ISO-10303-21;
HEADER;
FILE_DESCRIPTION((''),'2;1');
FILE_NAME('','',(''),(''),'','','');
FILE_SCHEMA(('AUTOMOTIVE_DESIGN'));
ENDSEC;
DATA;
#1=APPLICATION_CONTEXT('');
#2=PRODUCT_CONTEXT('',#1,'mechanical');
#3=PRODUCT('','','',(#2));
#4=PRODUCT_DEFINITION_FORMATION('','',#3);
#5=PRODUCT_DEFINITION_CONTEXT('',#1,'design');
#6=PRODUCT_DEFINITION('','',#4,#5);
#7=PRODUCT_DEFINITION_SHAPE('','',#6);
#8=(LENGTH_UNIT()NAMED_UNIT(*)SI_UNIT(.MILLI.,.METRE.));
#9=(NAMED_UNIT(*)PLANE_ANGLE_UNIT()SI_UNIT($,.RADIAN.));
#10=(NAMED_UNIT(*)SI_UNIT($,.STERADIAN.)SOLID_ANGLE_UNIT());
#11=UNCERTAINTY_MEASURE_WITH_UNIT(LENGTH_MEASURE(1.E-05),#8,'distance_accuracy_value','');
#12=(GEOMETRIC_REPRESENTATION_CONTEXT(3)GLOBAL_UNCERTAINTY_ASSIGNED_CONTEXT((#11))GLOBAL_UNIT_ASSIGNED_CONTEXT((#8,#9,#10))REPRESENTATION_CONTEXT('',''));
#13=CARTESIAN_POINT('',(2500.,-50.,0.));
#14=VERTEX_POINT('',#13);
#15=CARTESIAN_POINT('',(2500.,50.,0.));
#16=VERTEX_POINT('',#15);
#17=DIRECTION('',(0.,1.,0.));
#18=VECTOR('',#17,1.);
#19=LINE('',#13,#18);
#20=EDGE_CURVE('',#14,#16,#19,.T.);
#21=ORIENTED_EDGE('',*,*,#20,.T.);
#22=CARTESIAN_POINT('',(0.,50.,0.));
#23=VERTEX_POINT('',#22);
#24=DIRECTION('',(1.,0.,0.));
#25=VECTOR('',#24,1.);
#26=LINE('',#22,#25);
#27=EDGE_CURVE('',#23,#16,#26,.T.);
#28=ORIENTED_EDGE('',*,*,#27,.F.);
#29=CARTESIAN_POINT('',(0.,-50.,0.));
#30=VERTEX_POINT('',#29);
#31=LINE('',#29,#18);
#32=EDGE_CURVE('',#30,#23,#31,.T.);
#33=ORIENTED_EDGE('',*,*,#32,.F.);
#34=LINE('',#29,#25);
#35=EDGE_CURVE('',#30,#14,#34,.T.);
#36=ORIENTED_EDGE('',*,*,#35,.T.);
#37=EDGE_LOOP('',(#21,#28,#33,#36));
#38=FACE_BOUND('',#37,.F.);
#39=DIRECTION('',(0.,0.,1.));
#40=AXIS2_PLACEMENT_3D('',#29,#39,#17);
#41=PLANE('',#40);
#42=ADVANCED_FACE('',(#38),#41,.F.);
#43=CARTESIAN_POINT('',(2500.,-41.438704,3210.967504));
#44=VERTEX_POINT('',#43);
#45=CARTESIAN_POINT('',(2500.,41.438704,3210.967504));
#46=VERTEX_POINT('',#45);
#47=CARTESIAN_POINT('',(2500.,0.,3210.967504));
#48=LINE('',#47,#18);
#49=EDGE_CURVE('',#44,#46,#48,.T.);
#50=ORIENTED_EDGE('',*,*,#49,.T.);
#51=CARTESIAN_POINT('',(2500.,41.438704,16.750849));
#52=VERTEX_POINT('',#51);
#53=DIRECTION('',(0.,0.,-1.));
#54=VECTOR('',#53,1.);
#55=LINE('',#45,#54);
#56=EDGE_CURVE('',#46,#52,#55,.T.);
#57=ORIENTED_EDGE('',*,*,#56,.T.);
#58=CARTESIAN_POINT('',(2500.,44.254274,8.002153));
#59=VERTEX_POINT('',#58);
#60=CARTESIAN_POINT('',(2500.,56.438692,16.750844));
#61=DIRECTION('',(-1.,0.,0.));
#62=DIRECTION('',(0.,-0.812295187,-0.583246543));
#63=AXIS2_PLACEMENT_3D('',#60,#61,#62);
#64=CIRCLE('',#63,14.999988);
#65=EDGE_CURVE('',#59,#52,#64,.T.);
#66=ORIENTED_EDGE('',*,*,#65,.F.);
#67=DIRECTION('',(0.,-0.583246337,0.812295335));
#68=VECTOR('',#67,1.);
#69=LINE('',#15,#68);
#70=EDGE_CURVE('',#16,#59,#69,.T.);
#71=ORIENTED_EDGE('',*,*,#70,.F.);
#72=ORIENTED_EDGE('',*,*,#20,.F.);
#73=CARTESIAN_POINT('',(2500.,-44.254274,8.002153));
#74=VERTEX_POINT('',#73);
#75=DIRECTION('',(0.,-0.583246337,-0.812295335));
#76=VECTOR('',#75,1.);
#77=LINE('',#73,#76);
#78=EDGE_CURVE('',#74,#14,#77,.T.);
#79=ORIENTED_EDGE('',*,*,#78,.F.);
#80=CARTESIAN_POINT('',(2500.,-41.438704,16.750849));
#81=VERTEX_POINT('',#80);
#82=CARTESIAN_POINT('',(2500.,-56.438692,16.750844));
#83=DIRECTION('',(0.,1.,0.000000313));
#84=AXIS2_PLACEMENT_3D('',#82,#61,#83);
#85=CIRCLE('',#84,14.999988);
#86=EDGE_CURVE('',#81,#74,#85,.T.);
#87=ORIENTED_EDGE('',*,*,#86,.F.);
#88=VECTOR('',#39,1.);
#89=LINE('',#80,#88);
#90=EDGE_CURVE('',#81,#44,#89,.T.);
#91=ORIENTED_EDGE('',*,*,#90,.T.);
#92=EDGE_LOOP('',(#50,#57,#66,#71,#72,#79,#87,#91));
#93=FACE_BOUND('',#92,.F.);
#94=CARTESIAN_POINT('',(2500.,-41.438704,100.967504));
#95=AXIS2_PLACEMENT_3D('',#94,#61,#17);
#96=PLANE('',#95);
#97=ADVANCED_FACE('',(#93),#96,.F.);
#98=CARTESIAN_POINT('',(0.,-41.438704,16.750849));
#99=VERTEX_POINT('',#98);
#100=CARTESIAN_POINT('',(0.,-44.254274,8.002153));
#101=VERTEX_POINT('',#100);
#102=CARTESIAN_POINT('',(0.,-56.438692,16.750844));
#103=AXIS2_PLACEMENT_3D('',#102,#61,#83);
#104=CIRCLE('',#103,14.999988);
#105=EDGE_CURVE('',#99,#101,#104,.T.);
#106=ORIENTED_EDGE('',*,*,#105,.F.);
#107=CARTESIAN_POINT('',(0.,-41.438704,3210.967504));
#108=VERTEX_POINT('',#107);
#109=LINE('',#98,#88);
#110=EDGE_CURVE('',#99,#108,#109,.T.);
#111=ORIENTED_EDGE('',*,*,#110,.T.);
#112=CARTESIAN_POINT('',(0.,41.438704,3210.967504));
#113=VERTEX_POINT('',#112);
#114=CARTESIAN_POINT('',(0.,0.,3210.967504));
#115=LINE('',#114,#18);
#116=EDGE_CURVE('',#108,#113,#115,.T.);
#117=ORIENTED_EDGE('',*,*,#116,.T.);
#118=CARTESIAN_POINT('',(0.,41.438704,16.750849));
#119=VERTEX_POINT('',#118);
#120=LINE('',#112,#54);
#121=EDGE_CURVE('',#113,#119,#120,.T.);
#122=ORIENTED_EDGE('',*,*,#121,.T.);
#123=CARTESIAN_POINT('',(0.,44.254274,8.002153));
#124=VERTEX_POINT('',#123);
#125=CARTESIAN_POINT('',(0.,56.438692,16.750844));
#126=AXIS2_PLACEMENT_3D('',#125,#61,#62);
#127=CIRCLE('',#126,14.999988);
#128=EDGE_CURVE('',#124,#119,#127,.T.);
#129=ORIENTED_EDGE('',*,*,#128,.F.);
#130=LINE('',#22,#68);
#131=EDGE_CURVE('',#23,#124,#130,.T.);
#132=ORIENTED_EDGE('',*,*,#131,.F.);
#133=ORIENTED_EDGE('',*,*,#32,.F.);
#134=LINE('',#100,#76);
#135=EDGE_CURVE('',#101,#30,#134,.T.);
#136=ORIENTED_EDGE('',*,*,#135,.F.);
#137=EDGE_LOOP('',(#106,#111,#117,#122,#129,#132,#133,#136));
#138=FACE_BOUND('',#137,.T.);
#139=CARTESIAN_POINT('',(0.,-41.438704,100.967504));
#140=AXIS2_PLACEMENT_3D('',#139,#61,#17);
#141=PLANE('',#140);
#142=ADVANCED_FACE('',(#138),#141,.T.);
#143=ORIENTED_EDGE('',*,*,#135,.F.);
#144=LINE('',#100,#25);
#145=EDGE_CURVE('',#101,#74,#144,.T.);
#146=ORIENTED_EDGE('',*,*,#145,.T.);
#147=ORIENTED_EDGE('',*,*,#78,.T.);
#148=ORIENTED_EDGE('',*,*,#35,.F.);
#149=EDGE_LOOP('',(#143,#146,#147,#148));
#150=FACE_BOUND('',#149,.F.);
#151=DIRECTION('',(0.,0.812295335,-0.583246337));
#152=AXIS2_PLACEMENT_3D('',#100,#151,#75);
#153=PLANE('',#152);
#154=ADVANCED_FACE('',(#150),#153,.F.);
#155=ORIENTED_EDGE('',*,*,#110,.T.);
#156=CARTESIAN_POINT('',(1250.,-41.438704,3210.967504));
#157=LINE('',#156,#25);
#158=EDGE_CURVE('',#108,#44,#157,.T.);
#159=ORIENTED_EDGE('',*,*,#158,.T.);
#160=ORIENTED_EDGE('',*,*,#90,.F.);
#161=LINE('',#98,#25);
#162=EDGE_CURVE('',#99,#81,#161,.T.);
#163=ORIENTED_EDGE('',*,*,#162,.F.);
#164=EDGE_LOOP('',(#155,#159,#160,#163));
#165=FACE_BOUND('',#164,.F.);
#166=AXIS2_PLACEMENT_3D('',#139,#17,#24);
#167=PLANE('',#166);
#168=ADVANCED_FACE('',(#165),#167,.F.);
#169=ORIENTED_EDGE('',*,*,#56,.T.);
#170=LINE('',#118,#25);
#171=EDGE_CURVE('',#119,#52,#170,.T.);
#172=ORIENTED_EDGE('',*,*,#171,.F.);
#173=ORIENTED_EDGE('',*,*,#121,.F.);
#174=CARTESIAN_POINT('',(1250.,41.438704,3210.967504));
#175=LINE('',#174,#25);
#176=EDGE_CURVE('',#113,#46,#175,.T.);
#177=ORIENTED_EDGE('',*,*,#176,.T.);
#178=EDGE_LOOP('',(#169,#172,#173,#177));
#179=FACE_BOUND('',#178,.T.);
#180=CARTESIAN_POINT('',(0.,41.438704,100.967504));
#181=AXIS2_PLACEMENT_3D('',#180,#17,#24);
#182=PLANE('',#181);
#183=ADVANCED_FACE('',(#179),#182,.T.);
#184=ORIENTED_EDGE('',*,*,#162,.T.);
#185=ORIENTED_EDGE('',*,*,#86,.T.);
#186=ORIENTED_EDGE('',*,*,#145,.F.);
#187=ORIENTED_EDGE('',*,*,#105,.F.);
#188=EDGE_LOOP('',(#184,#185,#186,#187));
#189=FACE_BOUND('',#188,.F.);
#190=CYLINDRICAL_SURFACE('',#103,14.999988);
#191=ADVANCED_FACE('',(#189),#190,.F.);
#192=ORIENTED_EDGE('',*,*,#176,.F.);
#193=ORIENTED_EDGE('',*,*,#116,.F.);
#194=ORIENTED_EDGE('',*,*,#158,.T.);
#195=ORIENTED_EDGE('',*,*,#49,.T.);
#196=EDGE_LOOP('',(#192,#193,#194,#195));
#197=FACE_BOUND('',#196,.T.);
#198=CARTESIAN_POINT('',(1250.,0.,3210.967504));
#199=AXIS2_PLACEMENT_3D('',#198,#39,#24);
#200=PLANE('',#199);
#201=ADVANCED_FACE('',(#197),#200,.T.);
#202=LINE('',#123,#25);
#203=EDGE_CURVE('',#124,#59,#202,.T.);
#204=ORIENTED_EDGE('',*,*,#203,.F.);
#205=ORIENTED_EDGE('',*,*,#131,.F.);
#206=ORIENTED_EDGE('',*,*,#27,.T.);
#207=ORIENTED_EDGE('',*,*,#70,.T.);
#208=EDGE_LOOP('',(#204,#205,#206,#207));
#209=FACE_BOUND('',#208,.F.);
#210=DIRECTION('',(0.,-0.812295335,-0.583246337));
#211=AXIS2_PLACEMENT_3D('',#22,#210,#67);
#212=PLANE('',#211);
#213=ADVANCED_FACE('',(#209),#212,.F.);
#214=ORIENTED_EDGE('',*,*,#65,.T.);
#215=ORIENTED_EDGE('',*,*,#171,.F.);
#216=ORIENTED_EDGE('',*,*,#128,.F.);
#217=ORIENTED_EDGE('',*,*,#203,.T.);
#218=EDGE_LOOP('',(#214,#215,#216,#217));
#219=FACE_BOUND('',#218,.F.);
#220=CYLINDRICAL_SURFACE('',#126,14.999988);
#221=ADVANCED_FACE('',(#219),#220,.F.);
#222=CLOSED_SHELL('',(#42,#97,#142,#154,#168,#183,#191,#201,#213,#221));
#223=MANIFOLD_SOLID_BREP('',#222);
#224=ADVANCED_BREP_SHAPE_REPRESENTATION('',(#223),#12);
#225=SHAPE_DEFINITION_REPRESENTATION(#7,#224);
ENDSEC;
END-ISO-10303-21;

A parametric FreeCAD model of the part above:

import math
import FreeCAD as App
import Part
import Sketcher
Q = App.Units.Quantity


def add_polygon(sketch, points):
    """Adds a closed chain of lines whose ends are joined by coincident constraints."""
    first, n = sketch.GeometryCount, len(points)
    for a, b in zip(points, points[1:] + points[:1]):
        sketch.addGeometry(Part.LineSegment(App.Vector(*a, 0), App.Vector(*b, 0)), False)
    for i in range(n):
        sketch.addConstraint(Sketcher.Constraint("Coincident", first + i, 2, first + (i + 1) % n, 1))

doc = App.newDocument("Part")
body = doc.addObject("PartDesign::Body", "Body")

# Sketch on YZ plane
sketch1 = body.newObject("Sketcher::SketchObject", "Sketch")
sketch1.AttachmentSupport = (doc.getObject("YZ_Plane"), [""])
sketch1.MapMode = "FlatFace"
sketch1.addGeometry(Part.LineSegment(App.Vector(-50, 0, 0), App.Vector(50, 0, 0)), False)
sketch1.addGeometry(Part.LineSegment(App.Vector(50, 0, 0), App.Vector(44, 8, 0)), False)
sketch1.addGeometry(Part.ArcOfCircle(Part.Circle(App.Vector(56, 17, 0), App.Vector(0, 0, 1), 15), math.radians(180), math.radians(216)), False)
sketch1.addGeometry(Part.LineSegment(App.Vector(41, 17, 0), App.Vector(41, 101, 0)), False)
sketch1.addGeometry(Part.LineSegment(App.Vector(41, 101, 0), App.Vector(-41, 101, 0)), False)
sketch1.addGeometry(Part.LineSegment(App.Vector(-41, 101, 0), App.Vector(-41, 17, 0)), False)
sketch1.addGeometry(Part.ArcOfCircle(Part.Circle(App.Vector(-56, 17, 0), App.Vector(0, 0, 1), 15), math.radians(-36), math.radians(0)), False)
sketch1.addGeometry(Part.LineSegment(App.Vector(-44, 8, 0), App.Vector(-50, 0, 0)), False)
sketch1.addConstraint(Sketcher.Constraint("Coincident", 0, 2, 1, 1))
sketch1.addConstraint(Sketcher.Constraint("Tangent", 1, 2, 2, 2))
sketch1.addConstraint(Sketcher.Constraint("Tangent", 2, 1, 3, 1))
sketch1.addConstraint(Sketcher.Constraint("Coincident", 3, 2, 4, 1))
sketch1.addConstraint(Sketcher.Constraint("Coincident", 4, 2, 5, 1))
sketch1.addConstraint(Sketcher.Constraint("Tangent", 5, 2, 6, 2))
sketch1.addConstraint(Sketcher.Constraint("Tangent", 6, 1, 7, 1))
sketch1.addConstraint(Sketcher.Constraint("Coincident", 7, 2, 0, 1))
sketch1.addConstraint(Sketcher.Constraint("Horizontal", 0))
sketch1.addConstraint(Sketcher.Constraint("Vertical", 3))
sketch1.addConstraint(Sketcher.Constraint("Horizontal", 4))
sketch1.addConstraint(Sketcher.Constraint("Vertical", 5))
sketch1.addConstraint(Sketcher.Constraint("Equal", 2, 6))
sketch1.addConstraint(Sketcher.Constraint("Symmetric", 0, 2, 7, 2, -1, 1))
sketch1.addConstraint(Sketcher.Constraint("Symmetric", 2, 3, 6, 3, -2))
sketch1.addConstraint(Sketcher.Constraint("DistanceX", 0, 1, 0, 2, Q("100 mm")))
sketch1.addConstraint(Sketcher.Constraint("Radius", 2, Q("14.999988 mm")))
sketch1.addConstraint(Sketcher.Constraint("DistanceX", 4, 2, 4, 1, Q("82.877408 mm")))
sketch1.addConstraint(Sketcher.Constraint("DistanceY", 3, 1, 3, 2, Q("84.216655 mm")))
sketch1.addConstraint(Sketcher.Constraint("DistanceY", -1, 1, 2, 1, Q("16.750849 mm")))
pad1 = body.newObject("PartDesign::Pad", "Pad")
pad1.Profile = sketch1
pad1.Length = 2500

# Sketch on XY plane
sketch2 = body.newObject("Sketcher::SketchObject", "Sketch001")
sketch2.AttachmentSupport = (doc.getObject("XY_Plane"), [""])
sketch2.MapMode = "FlatFace"
sketch2.AttachmentOffset = App.Placement(App.Vector(0, 0, 100.967504), App.Rotation())
add_polygon(sketch2, [(0, 41), (0, -41), (2500, -41), (2500, 41)])  # lines 0-3
sketch2.addConstraint(Sketcher.Constraint("Vertical", 0))
sketch2.addConstraint(Sketcher.Constraint("Horizontal", 1))
sketch2.addConstraint(Sketcher.Constraint("Vertical", 2))
sketch2.addConstraint(Sketcher.Constraint("Horizontal", 3))
sketch2.addConstraint(Sketcher.Constraint("Symmetric", 0, 2, 3, 2, -1, 1))
sketch2.addConstraint(Sketcher.Constraint("DistanceX", 1, 1, 1, 2, Q("2500 mm")))
sketch2.addConstraint(Sketcher.Constraint("DistanceY", 0, 2, 0, 1, Q("82.877408 mm")))
pad2 = body.newObject("PartDesign::Pad", "Pad001")
pad2.Profile = sketch2
pad2.Length = 3110

doc.recompute()
